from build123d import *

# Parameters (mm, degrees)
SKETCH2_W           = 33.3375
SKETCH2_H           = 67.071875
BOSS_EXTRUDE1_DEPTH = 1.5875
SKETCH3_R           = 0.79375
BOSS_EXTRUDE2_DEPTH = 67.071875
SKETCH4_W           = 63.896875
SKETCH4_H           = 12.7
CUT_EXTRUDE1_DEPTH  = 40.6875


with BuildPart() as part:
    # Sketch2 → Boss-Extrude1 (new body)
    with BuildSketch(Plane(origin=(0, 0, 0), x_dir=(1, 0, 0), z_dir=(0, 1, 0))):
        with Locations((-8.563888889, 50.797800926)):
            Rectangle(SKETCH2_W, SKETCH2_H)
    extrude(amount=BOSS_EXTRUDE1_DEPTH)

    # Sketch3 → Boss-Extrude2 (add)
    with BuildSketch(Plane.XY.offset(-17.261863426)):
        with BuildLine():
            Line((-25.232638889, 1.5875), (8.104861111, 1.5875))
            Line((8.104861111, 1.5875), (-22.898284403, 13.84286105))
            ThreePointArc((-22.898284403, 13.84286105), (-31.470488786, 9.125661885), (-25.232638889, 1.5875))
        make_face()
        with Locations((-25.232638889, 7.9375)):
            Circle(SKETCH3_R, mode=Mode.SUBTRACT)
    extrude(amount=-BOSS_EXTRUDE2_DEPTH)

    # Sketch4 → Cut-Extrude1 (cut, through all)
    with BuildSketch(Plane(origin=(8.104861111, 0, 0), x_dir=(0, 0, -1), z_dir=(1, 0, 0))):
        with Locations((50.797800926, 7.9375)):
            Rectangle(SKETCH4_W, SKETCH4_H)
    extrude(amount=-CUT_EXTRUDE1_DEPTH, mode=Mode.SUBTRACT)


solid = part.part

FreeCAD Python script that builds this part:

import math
import FreeCAD as App
import Part
import Sketcher
Q = App.Units.Quantity


def add_polygon(sketch, points):
    """Adds a closed chain of lines whose ends are joined by coincident constraints."""
    first, n = sketch.GeometryCount, len(points)
    for a, b in zip(points, points[1:] + points[:1]):
        sketch.addGeometry(Part.LineSegment(App.Vector(*a, 0), App.Vector(*b, 0)), False)
    for i in range(n):
        sketch.addConstraint(Sketcher.Constraint("Coincident", first + i, 2, first + (i + 1) % n, 1))

doc = App.newDocument("Part")
body = doc.addObject("PartDesign::Body", "Body")

sketch1 = body.newObject("Sketcher::SketchObject", "Sketch")
sketch1.AttachmentSupport = (doc.getObject("XZ_Plane"), [""])
sketch1.MapMode = "FlatFace"
add_polygon(sketch1, [(-25, -84), (-25, -17), (8, -17), (8, -84)])
sketch1.addConstraint([
    Sketcher.Constraint("Vertical", 0),
    Sketcher.Constraint("Horizontal", 1),
    Sketcher.Constraint("Vertical", 2),
    Sketcher.Constraint("Horizontal", 3),
    Sketcher.Constraint("DistanceX", 1, 1, 1, 2, Q("1.3125 in")),
    Sketcher.Constraint("DistanceY", 0, 1, 0, 2, Q("2.640625 in")),
    Sketcher.Constraint("DistanceX", 0, 2, -1, 1, Q("25.232639 mm")),
    Sketcher.Constraint("DistanceY", 2, 2, -1, 1, Q("84.333738 mm")),
])
pad1 = body.newObject("PartDesign::Pad", "Pad")
pad1.Profile = sketch1
pad1.Length = Q("0.0625 in")
pad1.Reversed = True

sketch2 = body.newObject("Sketcher::SketchObject", "Sketch001")
sketch2.AttachmentSupport = (doc.getObject("XY_Plane"), [""])
sketch2.MapMode = "FlatFace"
sketch2.AttachmentOffset = App.Placement(App.Vector(0, 0, -17.261863), App.Rotation())
sketch2.addGeometry([
    Part.LineSegment(App.Vector(-25.2, 1.6, 0), App.Vector(8.1, 1.6, 0)),
    Part.LineSegment(App.Vector(8.1, 1.6, 0), App.Vector(-22.9, 13.8, 0)),
    Part.ArcOfCircle(Part.Circle(App.Vector(-25.2, 7.9, 0), App.Vector(0, 0, 1), 6.3), math.radians(68), math.radians(270)),
    Part.Circle(App.Vector(-25.2, 7.9, 0), App.Vector(0, 0, 1), 0.8),
], False)
sketch2.addConstraint([
    Sketcher.Constraint("Coincident", 0, 2, 1, 1),
    Sketcher.Constraint("Tangent", 1, 2, 2, 1),
    Sketcher.Constraint("Tangent", 2, 2, 0, 1),
    Sketcher.Constraint("Horizontal", 0),
    Sketcher.Constraint("Coincident", 3, 3, 2, 3),
    Sketcher.Constraint("Radius", 2, Q("0.25 in")),
    Sketcher.Constraint("Diameter", 3, Q("0.0625 in")),
    Sketcher.Constraint("DistanceX", 0, 1, 0, 2, Q("1.3125 in")),
    Sketcher.Constraint("DistanceY", -1, 1, 2, 3, Q("0.3125 in")),
    Sketcher.Constraint("DistanceX", 2, 3, -1, 1, Q("25.232639 mm")),
])
pad2 = body.newObject("PartDesign::Pad", "Pad001")
pad2.Profile = sketch2
pad2.Length = Q("2.640625 in")
pad2.Reversed = True

sketch3 = body.newObject("Sketcher::SketchObject", "Sketch002")
sketch3.AttachmentSupport = (doc.getObject("YZ_Plane"), [""])
sketch3.MapMode = "FlatFace"
sketch3.AttachmentOffset = App.Placement(App.Vector(0, 0, 8.104861), App.Rotation())
add_polygon(sketch3, [(14, -19), (2, -19), (2, -83), (14, -83)])
sketch3.addConstraint([
    Sketcher.Constraint("Horizontal", 0),
    Sketcher.Constraint("Vertical", 1),
    Sketcher.Constraint("Horizontal", 2),
    Sketcher.Constraint("Vertical", 3),
    Sketcher.Constraint("DistanceX", 0, 2, 0, 1, Q("0.5 in")),
    Sketcher.Constraint("DistanceY", 1, 2, 1, 1, Q("2.515625 in")),
    Sketcher.Constraint("DistanceX", -1, 1, 0, 2, Q("0.0625 in")),
    Sketcher.Constraint("DistanceY", 1, 2, -1, 1, Q("82.746238 mm")),
])
pocket1 = body.newObject("PartDesign::Pocket", "Pocket")
pocket1.Profile = sketch3
pocket1.Type = "ThroughAll"

doc.recompute()
